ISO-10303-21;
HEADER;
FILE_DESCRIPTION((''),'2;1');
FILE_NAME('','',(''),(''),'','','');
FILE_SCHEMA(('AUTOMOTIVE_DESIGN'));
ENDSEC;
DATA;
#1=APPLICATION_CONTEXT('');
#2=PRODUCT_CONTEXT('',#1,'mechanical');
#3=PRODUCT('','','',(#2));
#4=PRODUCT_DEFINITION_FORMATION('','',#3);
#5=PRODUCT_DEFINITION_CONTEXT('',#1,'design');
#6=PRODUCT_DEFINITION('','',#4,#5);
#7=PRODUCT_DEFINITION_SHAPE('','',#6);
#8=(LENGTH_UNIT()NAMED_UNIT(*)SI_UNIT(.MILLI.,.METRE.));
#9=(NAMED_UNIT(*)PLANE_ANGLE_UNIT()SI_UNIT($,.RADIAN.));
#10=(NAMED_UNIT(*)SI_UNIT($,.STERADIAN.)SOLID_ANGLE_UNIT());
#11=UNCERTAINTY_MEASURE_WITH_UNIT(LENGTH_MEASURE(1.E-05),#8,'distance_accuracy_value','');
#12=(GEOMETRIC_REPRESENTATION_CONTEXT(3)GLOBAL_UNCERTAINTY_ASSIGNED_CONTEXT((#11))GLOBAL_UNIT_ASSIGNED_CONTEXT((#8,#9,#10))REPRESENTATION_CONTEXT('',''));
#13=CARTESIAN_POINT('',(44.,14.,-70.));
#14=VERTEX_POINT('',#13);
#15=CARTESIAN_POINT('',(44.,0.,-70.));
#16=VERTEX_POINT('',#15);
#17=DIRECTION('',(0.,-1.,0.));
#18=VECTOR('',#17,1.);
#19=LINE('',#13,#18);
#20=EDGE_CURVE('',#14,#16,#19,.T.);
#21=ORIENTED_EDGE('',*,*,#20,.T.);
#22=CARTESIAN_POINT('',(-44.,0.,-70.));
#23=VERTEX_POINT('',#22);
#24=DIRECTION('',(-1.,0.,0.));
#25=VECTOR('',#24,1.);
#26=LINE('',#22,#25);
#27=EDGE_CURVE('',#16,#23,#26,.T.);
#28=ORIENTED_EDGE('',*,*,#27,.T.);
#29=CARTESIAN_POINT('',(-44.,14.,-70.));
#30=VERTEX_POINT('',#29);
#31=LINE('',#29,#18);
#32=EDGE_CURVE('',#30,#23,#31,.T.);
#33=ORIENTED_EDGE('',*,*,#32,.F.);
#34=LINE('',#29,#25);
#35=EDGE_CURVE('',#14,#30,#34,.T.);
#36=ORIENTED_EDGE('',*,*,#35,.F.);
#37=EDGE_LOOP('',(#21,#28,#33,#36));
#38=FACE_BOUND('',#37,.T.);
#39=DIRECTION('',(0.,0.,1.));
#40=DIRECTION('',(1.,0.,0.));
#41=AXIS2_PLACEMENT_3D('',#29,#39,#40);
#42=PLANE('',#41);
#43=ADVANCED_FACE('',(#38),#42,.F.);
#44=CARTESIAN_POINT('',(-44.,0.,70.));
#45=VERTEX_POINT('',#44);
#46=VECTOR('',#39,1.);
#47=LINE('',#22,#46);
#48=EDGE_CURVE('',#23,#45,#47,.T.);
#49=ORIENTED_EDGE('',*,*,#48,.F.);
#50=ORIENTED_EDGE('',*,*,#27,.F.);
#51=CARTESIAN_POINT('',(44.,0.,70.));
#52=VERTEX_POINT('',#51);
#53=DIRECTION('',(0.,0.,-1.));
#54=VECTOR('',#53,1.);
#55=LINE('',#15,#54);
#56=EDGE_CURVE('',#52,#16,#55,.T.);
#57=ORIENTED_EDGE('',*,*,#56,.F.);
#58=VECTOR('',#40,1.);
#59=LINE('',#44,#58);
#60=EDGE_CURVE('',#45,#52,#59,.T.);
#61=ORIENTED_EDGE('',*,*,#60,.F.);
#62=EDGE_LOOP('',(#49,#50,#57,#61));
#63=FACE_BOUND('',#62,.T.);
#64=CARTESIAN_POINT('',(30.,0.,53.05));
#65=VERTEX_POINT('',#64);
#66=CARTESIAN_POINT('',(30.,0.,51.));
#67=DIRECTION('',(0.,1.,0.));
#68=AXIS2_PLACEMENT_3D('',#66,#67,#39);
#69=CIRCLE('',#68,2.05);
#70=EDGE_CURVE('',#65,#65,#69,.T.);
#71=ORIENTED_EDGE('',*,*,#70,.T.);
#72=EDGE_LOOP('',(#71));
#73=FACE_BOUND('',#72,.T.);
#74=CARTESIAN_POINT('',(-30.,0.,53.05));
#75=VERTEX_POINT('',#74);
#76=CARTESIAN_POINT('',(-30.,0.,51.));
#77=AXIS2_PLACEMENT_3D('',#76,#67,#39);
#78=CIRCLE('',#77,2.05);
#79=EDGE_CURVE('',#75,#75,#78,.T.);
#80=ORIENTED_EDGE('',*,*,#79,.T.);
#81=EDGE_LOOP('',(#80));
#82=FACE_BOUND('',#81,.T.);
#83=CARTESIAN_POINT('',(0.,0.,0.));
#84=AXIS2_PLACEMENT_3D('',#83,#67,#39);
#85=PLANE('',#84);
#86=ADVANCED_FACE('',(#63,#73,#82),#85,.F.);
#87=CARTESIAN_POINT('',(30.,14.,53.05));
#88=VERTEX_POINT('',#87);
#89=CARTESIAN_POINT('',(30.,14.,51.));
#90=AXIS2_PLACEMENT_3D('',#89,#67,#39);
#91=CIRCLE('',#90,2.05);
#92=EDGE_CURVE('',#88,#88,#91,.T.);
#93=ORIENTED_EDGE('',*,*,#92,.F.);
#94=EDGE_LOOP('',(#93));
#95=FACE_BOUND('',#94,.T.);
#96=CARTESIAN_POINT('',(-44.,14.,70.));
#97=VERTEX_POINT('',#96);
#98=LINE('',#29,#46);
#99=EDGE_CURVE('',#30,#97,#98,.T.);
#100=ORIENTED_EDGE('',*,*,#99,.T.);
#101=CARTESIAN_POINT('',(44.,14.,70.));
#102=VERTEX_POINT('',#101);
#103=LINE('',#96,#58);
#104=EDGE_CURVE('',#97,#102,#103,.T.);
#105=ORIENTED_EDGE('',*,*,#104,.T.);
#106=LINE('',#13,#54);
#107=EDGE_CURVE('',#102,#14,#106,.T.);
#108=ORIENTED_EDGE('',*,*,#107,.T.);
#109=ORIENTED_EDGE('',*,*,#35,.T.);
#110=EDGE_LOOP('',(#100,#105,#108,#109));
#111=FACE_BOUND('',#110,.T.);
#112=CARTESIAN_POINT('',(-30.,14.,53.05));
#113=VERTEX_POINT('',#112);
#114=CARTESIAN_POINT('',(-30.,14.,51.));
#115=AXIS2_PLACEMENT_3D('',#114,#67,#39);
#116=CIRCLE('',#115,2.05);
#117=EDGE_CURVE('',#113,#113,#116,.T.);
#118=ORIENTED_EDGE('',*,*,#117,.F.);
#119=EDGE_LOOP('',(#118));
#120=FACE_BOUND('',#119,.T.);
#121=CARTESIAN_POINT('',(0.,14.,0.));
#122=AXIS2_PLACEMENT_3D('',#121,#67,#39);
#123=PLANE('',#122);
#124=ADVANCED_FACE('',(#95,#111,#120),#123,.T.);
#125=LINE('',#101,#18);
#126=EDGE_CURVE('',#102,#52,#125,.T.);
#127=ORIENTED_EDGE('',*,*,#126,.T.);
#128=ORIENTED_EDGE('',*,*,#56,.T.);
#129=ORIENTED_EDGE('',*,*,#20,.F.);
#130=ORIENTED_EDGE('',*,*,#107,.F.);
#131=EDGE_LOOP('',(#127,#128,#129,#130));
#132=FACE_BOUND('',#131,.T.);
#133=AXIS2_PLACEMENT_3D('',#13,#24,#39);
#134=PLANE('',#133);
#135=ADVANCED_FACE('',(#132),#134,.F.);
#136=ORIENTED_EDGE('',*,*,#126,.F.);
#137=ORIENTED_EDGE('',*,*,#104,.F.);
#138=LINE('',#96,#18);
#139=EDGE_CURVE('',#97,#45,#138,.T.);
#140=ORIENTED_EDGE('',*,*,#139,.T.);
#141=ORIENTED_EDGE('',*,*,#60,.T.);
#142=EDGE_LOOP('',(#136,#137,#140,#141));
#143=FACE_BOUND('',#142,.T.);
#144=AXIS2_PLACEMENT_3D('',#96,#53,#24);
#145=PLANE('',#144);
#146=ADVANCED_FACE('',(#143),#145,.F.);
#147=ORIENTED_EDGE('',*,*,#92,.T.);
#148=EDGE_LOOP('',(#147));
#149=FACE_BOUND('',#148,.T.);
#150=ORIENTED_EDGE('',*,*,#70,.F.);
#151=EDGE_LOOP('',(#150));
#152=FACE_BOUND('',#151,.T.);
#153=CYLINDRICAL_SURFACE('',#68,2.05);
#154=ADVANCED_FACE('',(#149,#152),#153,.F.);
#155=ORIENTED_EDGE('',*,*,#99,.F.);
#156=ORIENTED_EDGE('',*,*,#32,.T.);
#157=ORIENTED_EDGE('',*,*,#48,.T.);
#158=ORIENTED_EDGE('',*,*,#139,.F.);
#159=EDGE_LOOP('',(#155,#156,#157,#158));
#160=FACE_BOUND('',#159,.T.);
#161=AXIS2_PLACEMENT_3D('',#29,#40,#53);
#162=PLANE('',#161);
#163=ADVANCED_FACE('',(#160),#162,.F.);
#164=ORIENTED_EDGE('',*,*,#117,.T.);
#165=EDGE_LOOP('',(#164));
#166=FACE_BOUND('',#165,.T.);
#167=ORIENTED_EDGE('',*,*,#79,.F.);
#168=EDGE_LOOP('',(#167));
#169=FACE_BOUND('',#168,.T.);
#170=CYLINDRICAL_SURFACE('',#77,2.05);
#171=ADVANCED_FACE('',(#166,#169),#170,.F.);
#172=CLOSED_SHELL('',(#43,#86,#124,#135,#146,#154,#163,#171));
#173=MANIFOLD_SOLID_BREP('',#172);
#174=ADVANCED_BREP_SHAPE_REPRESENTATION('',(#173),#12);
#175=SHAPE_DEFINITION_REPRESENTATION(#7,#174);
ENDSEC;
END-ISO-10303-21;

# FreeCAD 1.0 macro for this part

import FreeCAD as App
import Part
import Sketcher

V = App.Vector
Q = App.Units.Quantity

doc = App.newDocument("Part")
body = doc.addObject("PartDesign::Body", "Body")

sketch1 = body.newObject("Sketcher::SketchObject", "Sketch")
sketch1.AttachmentSupport = (doc.getObject("XZ_Plane"), [""])
sketch1.MapMode = "FlatFace"
sketch1.addGeometry([
    Part.LineSegment(V(-44, -70, 0), V(-44, 70, 0)),
    Part.LineSegment(V(-44, 70, 0), V(44, 70, 0)),
    Part.LineSegment(V(44, 70, 0), V(44, -70, 0)),
    Part.LineSegment(V(44, -70, 0), V(-44, -70, 0)),
], False)
sketch1.addConstraint([
    Sketcher.Constraint("Coincident", 0, 2, 1, 1),
    Sketcher.Constraint("Coincident", 1, 2, 2, 1),
    Sketcher.Constraint("Coincident", 2, 2, 3, 1),
    Sketcher.Constraint("Coincident", 3, 2, 0, 1),
    Sketcher.Constraint("Vertical", 0),
    Sketcher.Constraint("Horizontal", 1),
    Sketcher.Constraint("Vertical", 2),
    Sketcher.Constraint("Horizontal", 3),
    Sketcher.Constraint("Symmetric", 0, 2, 2, 2, -1, 1),
    Sketcher.Constraint("DistanceX", 1, 1, 1, 2, Q("88 mm")),
    Sketcher.Constraint("DistanceY", 0, 1, 0, 2, Q("140 mm")),
])
pad1 = body.newObject("PartDesign::Pad", "Pad")
pad1.Profile = sketch1
pad1.Length = 14
pad1.Reversed = True

sketch2 = body.newObject("Sketcher::SketchObject", "Sketch001")
sketch2.AttachmentSupport = (doc.getObject("XZ_Plane"), [""])
sketch2.MapMode = "FlatFace"
sketch2.AttachmentOffset = App.Placement(V(0, 0, -14), App.Rotation())
sketch2.addGeometry([
    Part.Circle(V(-30, 51, 0), V(0, 0, 1), 2.05),
    Part.Circle(V(30, 51, 0), V(0, 0, 1), 2.05),
], False)
sketch2.addConstraint([
    Sketcher.Constraint("Equal", 0, 1),
    Sketcher.Constraint("Symmetric", 0, 3, 1, 3, -2),
    Sketcher.Constraint("Diameter", 0, Q("4.1 mm")),
    Sketcher.Constraint("DistanceX", 0, 3, -1, 1, Q("30 mm")),
    Sketcher.Constraint("DistanceY", -1, 1, 0, 3, Q("51 mm")),
])
pocket1 = body.newObject("PartDesign::Pocket", "Pocket")
pocket1.Profile = sketch2
pocket1.Length = 14
pocket1.Reversed = True

doc.recompute()
